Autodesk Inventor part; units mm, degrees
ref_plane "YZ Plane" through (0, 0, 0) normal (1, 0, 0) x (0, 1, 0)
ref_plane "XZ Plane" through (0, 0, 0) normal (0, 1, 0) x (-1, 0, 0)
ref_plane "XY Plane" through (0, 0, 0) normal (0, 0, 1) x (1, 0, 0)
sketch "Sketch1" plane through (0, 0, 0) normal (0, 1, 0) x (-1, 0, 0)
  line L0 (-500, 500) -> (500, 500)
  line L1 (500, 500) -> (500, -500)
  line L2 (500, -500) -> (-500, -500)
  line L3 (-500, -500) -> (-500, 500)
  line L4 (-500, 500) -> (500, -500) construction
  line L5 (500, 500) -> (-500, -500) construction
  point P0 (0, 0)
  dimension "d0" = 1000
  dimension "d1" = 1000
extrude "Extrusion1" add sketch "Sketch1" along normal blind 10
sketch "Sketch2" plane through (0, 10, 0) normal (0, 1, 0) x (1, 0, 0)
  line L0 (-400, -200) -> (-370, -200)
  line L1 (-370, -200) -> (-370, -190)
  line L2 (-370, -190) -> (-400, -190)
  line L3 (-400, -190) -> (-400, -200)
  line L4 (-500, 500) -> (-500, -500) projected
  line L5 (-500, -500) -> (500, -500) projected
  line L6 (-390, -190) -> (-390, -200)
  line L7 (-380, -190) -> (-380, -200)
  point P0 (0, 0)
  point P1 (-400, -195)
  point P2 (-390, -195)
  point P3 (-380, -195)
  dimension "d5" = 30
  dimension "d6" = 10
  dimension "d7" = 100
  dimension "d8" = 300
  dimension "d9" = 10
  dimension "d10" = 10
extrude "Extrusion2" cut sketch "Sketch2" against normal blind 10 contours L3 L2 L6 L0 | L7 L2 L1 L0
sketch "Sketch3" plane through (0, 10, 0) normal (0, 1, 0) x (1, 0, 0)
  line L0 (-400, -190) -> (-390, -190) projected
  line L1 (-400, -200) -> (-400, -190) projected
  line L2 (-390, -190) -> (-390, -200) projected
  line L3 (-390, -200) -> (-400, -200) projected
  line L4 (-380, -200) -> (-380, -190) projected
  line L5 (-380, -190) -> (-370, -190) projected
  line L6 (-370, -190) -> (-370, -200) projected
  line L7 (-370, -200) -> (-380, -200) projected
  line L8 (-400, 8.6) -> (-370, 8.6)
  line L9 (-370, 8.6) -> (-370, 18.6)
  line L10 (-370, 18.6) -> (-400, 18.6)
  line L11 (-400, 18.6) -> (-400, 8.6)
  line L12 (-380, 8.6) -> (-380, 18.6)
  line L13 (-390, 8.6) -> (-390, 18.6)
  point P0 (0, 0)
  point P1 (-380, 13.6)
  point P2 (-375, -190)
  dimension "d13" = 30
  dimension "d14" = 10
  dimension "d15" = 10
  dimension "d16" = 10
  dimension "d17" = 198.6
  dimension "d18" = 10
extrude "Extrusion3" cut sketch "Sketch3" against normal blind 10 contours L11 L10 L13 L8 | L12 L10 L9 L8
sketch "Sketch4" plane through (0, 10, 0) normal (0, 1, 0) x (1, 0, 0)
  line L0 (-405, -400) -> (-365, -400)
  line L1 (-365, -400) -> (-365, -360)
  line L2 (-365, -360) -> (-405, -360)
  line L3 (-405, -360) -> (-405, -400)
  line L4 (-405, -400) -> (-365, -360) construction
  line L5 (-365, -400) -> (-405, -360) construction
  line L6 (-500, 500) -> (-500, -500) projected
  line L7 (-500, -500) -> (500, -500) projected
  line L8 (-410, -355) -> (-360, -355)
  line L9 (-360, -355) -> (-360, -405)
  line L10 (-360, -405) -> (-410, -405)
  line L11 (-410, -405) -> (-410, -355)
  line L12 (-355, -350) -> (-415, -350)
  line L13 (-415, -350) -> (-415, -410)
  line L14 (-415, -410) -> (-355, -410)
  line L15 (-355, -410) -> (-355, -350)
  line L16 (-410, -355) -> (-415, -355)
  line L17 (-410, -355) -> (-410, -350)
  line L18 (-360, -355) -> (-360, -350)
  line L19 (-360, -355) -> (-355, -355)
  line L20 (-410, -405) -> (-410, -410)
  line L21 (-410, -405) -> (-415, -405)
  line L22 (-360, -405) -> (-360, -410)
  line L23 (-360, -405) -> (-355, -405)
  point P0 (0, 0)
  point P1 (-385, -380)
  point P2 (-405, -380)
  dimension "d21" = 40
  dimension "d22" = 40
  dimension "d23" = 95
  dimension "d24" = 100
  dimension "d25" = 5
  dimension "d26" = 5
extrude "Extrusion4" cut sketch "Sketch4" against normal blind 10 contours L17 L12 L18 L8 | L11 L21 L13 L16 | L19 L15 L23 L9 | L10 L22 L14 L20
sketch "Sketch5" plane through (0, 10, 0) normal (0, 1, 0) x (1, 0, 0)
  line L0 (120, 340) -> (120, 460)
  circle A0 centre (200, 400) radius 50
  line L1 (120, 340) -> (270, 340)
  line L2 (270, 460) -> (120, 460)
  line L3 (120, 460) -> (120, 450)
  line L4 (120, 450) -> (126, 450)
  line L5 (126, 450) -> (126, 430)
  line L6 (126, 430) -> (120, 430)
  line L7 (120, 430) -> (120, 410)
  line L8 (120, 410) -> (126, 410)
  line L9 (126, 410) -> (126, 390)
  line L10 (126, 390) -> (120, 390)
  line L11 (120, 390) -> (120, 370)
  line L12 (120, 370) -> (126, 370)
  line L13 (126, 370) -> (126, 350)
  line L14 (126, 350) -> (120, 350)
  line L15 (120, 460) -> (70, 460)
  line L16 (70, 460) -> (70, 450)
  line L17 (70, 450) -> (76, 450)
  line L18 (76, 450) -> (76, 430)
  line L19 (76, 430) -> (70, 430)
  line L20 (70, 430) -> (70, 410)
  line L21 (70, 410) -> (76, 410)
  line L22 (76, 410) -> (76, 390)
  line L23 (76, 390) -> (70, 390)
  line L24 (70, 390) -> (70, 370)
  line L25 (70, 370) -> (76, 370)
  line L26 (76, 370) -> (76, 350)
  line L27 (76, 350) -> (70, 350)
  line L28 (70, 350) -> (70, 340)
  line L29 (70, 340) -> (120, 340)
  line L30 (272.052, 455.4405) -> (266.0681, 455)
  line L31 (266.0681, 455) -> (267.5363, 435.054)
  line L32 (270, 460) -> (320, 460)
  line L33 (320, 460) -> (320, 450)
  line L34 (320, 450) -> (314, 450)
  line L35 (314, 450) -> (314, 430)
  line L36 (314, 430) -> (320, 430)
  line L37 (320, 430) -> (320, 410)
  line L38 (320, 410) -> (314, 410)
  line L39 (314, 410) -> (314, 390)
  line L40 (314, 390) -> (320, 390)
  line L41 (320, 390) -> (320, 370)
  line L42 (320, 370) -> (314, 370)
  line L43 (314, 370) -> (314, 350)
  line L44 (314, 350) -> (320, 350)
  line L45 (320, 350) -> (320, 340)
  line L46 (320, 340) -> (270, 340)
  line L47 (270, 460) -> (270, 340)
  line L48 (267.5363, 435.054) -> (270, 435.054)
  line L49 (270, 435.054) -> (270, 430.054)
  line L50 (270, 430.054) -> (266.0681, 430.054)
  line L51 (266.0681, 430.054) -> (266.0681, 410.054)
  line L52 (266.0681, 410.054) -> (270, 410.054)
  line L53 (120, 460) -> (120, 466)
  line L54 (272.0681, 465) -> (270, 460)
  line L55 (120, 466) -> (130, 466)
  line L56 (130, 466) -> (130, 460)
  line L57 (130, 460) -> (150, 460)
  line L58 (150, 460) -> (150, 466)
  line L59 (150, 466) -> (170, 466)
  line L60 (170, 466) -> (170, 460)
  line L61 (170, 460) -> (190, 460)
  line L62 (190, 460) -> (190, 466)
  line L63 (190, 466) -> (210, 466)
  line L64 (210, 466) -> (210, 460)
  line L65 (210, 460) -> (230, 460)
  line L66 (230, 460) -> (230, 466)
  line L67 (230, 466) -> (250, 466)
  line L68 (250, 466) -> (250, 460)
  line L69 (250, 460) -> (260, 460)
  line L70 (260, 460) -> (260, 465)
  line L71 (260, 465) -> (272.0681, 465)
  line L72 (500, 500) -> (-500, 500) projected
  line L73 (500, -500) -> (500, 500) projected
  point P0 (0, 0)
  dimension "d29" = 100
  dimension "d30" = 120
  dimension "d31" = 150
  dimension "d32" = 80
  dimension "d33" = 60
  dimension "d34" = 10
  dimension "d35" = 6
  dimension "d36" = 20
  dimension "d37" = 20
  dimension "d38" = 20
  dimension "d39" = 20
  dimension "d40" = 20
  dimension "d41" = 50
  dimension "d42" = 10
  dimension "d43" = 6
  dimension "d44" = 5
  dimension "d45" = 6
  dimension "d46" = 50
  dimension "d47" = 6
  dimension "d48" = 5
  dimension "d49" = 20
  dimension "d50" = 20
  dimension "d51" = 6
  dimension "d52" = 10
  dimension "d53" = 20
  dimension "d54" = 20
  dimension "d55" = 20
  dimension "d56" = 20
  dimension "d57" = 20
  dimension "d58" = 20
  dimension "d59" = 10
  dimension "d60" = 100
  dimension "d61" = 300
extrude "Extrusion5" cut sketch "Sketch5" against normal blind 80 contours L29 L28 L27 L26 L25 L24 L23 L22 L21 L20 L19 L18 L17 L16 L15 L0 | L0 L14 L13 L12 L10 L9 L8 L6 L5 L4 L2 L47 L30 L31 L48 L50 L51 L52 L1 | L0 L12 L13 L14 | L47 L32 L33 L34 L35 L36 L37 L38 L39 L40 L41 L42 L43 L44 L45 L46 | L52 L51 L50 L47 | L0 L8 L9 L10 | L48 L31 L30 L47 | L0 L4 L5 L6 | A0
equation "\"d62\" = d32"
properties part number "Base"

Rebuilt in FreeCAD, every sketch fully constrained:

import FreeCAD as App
import Part
import Sketcher
from FreeCAD import Vector

doc = App.newDocument("Part")
body = doc.addObject("PartDesign::Body", "Body")
body.AllowCompound = True

# Sketch on XZ plane
sketch1 = body.newObject("Sketcher::SketchObject", "Sketch")
sketch1.AttachmentSupport = (doc.getObject("XZ_Plane"), [""])
sketch1.MapMode = "FlatFace"
sketch1.addGeometry([
    Part.LineSegment(Vector(-500, 500, 0), Vector(500, 500, 0)),
    Part.LineSegment(Vector(500, 500, 0), Vector(500, -500, 0)),
    Part.LineSegment(Vector(500, -500, 0), Vector(-500, -500, 0)),
    Part.LineSegment(Vector(-500, -500, 0), Vector(-500, 500, 0)),
], False)
sketch1.addConstraint([
    Sketcher.Constraint("Coincident", 0, 2, 1, 1),
    Sketcher.Constraint("Coincident", 1, 2, 2, 1),
    Sketcher.Constraint("Coincident", 2, 2, 3, 1),
    Sketcher.Constraint("Coincident", 3, 2, 0, 1),
    Sketcher.Constraint("Horizontal", 0),
    Sketcher.Constraint("Vertical", 1),
    Sketcher.Constraint("Horizontal", 2),
    Sketcher.Constraint("Vertical", 3),
    Sketcher.Constraint("Symmetric", 0, 2, 2, 2, -1, 1),
    Sketcher.Constraint("Equal", 2, 1),
    Sketcher.Constraint("DistanceX", 0, 1, 0, 2, 1000.0),
])
pad1 = body.newObject("PartDesign::Pad", "Pad")
pad1.Profile = sketch1
pad1.Length = 10
pad1.Reversed = True

# Sketch on XZ plane
sketch2 = body.newObject("Sketcher::SketchObject", "Sketch001")
sketch2.AttachmentSupport = (doc.getObject("XZ_Plane"), [""])
sketch2.MapMode = "FlatFace"
sketch2.AttachmentOffset = App.Placement(Vector(0, 0, -10), App.Rotation())
sketch2.addGeometry([
    Part.LineSegment(Vector(-400, 190, 0), Vector(-400, 200, 0)),  # 0
    Part.LineSegment(Vector(-400, 200, 0), Vector(-390, 200, 0)),  # 1
    Part.LineSegment(Vector(-390, 200, 0), Vector(-390, 190, 0)),  # 2
    Part.LineSegment(Vector(-390, 190, 0), Vector(-400, 190, 0)),  # 3
    Part.LineSegment(Vector(-380, 190, 0), Vector(-380, 200, 0)),  # 4
    Part.LineSegment(Vector(-380, 200, 0), Vector(-370, 200, 0)),  # 5
    Part.LineSegment(Vector(-370, 200, 0), Vector(-370, 190, 0)),  # 6
    Part.LineSegment(Vector(-370, 190, 0), Vector(-380, 190, 0)),  # 7
], False)
sketch2.addConstraint([
    Sketcher.Constraint("Coincident", 0, 2, 1, 1),
    Sketcher.Constraint("Coincident", 1, 2, 2, 1),
    Sketcher.Constraint("Coincident", 2, 2, 3, 1),
    Sketcher.Constraint("Coincident", 3, 2, 0, 1),
    Sketcher.Constraint("Coincident", 4, 2, 5, 1),
    Sketcher.Constraint("Coincident", 5, 2, 6, 1),
    Sketcher.Constraint("Coincident", 6, 2, 7, 1),
    Sketcher.Constraint("Coincident", 7, 2, 4, 1),
    Sketcher.Constraint("Vertical", 0),
    Sketcher.Constraint("Horizontal", 1),
    Sketcher.Constraint("Vertical", 2),
    Sketcher.Constraint("Horizontal", 3),
    Sketcher.Constraint("Vertical", 4),
    Sketcher.Constraint("Horizontal", 5),
    Sketcher.Constraint("Vertical", 6),
    Sketcher.Constraint("Horizontal", 7),
    Sketcher.Constraint("Horizontal", 1, 2, 4, 2),
    Sketcher.Constraint("Horizontal", 3, 2, 6, 2),
    Sketcher.Constraint("Equal", 3, 5),
    Sketcher.Constraint("Equal", 7, 0),
    Sketcher.Constraint("DistanceX", 1, 1, 1, 2, 10.0),
    Sketcher.Constraint("DistanceX", 1, 2, 4, 2, 10.0),
    Sketcher.Constraint("DistanceX", 0, 2, -1, 1, 400.0),
    Sketcher.Constraint("DistanceY", -1, 1, 0, 2, 200.0),
])
pocket1 = body.newObject("PartDesign::Pocket", "Pocket")
pocket1.Profile = sketch2
pocket1.Length = 10
pocket1.Reversed = True

# Sketch on XZ plane
sketch3 = body.newObject("Sketcher::SketchObject", "Sketch002")
sketch3.AttachmentSupport = (doc.getObject("XZ_Plane"), [""])
sketch3.MapMode = "FlatFace"
sketch3.AttachmentOffset = App.Placement(Vector(0, 0, -10), App.Rotation())
sketch3.addGeometry([
    Part.LineSegment(Vector(-400, -18.6, 0), Vector(-400, -8.6, 0)),  # 0
    Part.LineSegment(Vector(-400, -8.6, 0), Vector(-390, -8.6, 0)),  # 1
    Part.LineSegment(Vector(-390, -8.6, 0), Vector(-390, -18.6, 0)),  # 2
    Part.LineSegment(Vector(-390, -18.6, 0), Vector(-400, -18.6, 0)),  # 3
    Part.LineSegment(Vector(-380, -18.6, 0), Vector(-380, -8.6, 0)),  # 4
    Part.LineSegment(Vector(-380, -8.6, 0), Vector(-370, -8.6, 0)),  # 5
    Part.LineSegment(Vector(-370, -8.6, 0), Vector(-370, -18.6, 0)),  # 6
    Part.LineSegment(Vector(-370, -18.6, 0), Vector(-380, -18.6, 0)),  # 7
], False)
sketch3.addConstraint([
    Sketcher.Constraint("Coincident", 0, 2, 1, 1),
    Sketcher.Constraint("Coincident", 1, 2, 2, 1),
    Sketcher.Constraint("Coincident", 2, 2, 3, 1),
    Sketcher.Constraint("Coincident", 3, 2, 0, 1),
    Sketcher.Constraint("Coincident", 4, 2, 5, 1),
    Sketcher.Constraint("Coincident", 5, 2, 6, 1),
    Sketcher.Constraint("Coincident", 6, 2, 7, 1),
    Sketcher.Constraint("Coincident", 7, 2, 4, 1),
    Sketcher.Constraint("Vertical", 0),
    Sketcher.Constraint("Horizontal", 1),
    Sketcher.Constraint("Vertical", 2),
    Sketcher.Constraint("Horizontal", 3),
    Sketcher.Constraint("Vertical", 4),
    Sketcher.Constraint("Horizontal", 5),
    Sketcher.Constraint("Vertical", 6),
    Sketcher.Constraint("Horizontal", 7),
    Sketcher.Constraint("Horizontal", 1, 2, 4, 2),
    Sketcher.Constraint("Horizontal", 3, 2, 6, 2),
    Sketcher.Constraint("Equal", 3, 5),
    Sketcher.Constraint("Equal", 7, 0),
    Sketcher.Constraint("DistanceX", 1, 1, 1, 2, 10.0),
    Sketcher.Constraint("DistanceX", 1, 2, 4, 2, 10.0),
    Sketcher.Constraint("DistanceX", 0, 2, -1, 1, 400.0),
    Sketcher.Constraint("DistanceY", 0, 2, -1, 1, 8.6),
])
pocket2 = body.newObject("PartDesign::Pocket", "Pocket001")
pocket2.Profile = sketch3
pocket2.Length = 10
pocket2.Reversed = True

# Sketch on XZ plane
sketch4 = body.newObject("Sketcher::SketchObject", "Sketch003")
sketch4.AttachmentSupport = (doc.getObject("XZ_Plane"), [""])
sketch4.MapMode = "FlatFace"
sketch4.AttachmentOffset = App.Placement(Vector(0, 0, -10), App.Rotation())
sketch4.addGeometry([
    Part.LineSegment(Vector(-410, 350, 0), Vector(-410, 355, 0)),  # 0
    Part.LineSegment(Vector(-410, 355, 0), Vector(-360, 355, 0)),  # 1
    Part.LineSegment(Vector(-360, 355, 0), Vector(-360, 350, 0)),  # 2
    Part.LineSegment(Vector(-360, 350, 0), Vector(-410, 350, 0)),  # 3
    Part.LineSegment(Vector(-410, 405, 0), Vector(-410, 355, 0)),  # 4
    Part.LineSegment(Vector(-410, 355, 0), Vector(-415, 355, 0)),  # 5
    Part.LineSegment(Vector(-415, 355, 0), Vector(-415, 405, 0)),  # 6
    Part.LineSegment(Vector(-415, 405, 0), Vector(-410, 405, 0)),  # 7
    Part.LineSegment(Vector(-355, 355, 0), Vector(-360, 355, 0)),  # 8
    Part.LineSegment(Vector(-360, 355, 0), Vector(-360, 405, 0)),  # 9
    Part.LineSegment(Vector(-360, 405, 0), Vector(-355, 405, 0)),  # 10
    Part.LineSegment(Vector(-355, 405, 0), Vector(-355, 355, 0)),  # 11
    Part.LineSegment(Vector(-360, 405, 0), Vector(-410, 405, 0)),  # 12
    Part.LineSegment(Vector(-410, 405, 0), Vector(-410, 410, 0)),  # 13
    Part.LineSegment(Vector(-410, 410, 0), Vector(-360, 410, 0)),  # 14
    Part.LineSegment(Vector(-360, 410, 0), Vector(-360, 405, 0)),  # 15
], False)
sketch4.addConstraint([
    Sketcher.Constraint("Coincident", 0, 2, 1, 1),
    Sketcher.Constraint("Coincident", 1, 2, 2, 1),
    Sketcher.Constraint("Coincident", 2, 2, 3, 1),
    Sketcher.Constraint("Coincident", 3, 2, 0, 1),
    Sketcher.Constraint("Coincident", 4, 2, 5, 1),
    Sketcher.Constraint("Coincident", 5, 2, 6, 1),
    Sketcher.Constraint("Coincident", 6, 2, 7, 1),
    Sketcher.Constraint("Coincident", 7, 2, 4, 1),
    Sketcher.Constraint("Coincident", 8, 2, 9, 1),
    Sketcher.Constraint("Coincident", 9, 2, 10, 1),
    Sketcher.Constraint("Coincident", 10, 2, 11, 1),
    Sketcher.Constraint("Coincident", 11, 2, 8, 1),
    Sketcher.Constraint("Coincident", 12, 2, 13, 1),
    Sketcher.Constraint("Coincident", 13, 2, 14, 1),
    Sketcher.Constraint("Coincident", 14, 2, 15, 1),
    Sketcher.Constraint("Coincident", 15, 2, 12, 1),
    Sketcher.Constraint("Vertical", 0),
    Sketcher.Constraint("Horizontal", 1),
    Sketcher.Constraint("Vertical", 2),
    Sketcher.Constraint("Horizontal", 3),
    Sketcher.Constraint("Vertical", 4),
    Sketcher.Constraint("Horizontal", 5),
    Sketcher.Constraint("Vertical", 6),
    Sketcher.Constraint("Horizontal", 7),
    Sketcher.Constraint("Horizontal", 8),
    Sketcher.Constraint("Vertical", 9),
    Sketcher.Constraint("Horizontal", 10),
    Sketcher.Constraint("Vertical", 11),
    Sketcher.Constraint("Horizontal", 12),
    Sketcher.Constraint("Vertical", 13),
    Sketcher.Constraint("Horizontal", 14),
    Sketcher.Constraint("Vertical", 15),
    Sketcher.Constraint("Coincident", 4, 2, 0, 2),
    Sketcher.Constraint("Coincident", 8, 2, 1, 2),
    Sketcher.Constraint("Coincident", 12, 2, 7, 2),
    Sketcher.Constraint("Coincident", 15, 2, 9, 2),
    Sketcher.Constraint("Equal", 7, 8),
    Sketcher.Constraint("Equal", 10, 0),
    Sketcher.Constraint("Equal", 14, 4),
    Sketcher.Constraint("Equal", 2, 13),
    Sketcher.Constraint("DistanceX", 5, 2, 5, 1, 5.0),
    Sketcher.Constraint("DistanceX", 1, 1, 1, 2, 50.0),
    Sketcher.Constraint("DistanceX", 0, 2, -1, 1, 410.0),
    Sketcher.Constraint("DistanceY", -1, 1, 0, 2, 355.0),
])
pocket3 = body.newObject("PartDesign::Pocket", "Pocket002")
pocket3.Profile = sketch4
pocket3.Length = 10
pocket3.Reversed = True

# Sketch on XZ plane
sketch5 = body.newObject("Sketcher::SketchObject", "Sketch004")
sketch5.AttachmentSupport = (doc.getObject("XZ_Plane"), [""])
sketch5.MapMode = "FlatFace"
sketch5.AttachmentOffset = App.Placement(Vector(0, 0, -10), App.Rotation())
sketch5.addGeometry([
    Part.LineSegment(Vector(70, -340, 0), Vector(320, -340, 0)),  # 0
    Part.LineSegment(Vector(320, -340, 0), Vector(320, -350, 0)),  # 1
    Part.LineSegment(Vector(320, -350, 0), Vector(314, -350, 0)),  # 2
    Part.LineSegment(Vector(314, -350, 0), Vector(314, -370, 0)),  # 3
    Part.LineSegment(Vector(314, -370, 0), Vector(320, -370, 0)),  # 4
    Part.LineSegment(Vector(320, -370, 0), Vector(320, -390, 0)),  # 5
    Part.LineSegment(Vector(320, -390, 0), Vector(314, -390, 0)),  # 6
    Part.LineSegment(Vector(314, -390, 0), Vector(314, -410, 0)),  # 7
    Part.LineSegment(Vector(314, -410, 0), Vector(320, -410, 0)),  # 8
    Part.LineSegment(Vector(320, -410, 0), Vector(320, -430, 0)),  # 9
    Part.LineSegment(Vector(320, -430, 0), Vector(314, -430, 0)),  # 10
    Part.LineSegment(Vector(314, -430, 0), Vector(314, -450, 0)),  # 11
    Part.LineSegment(Vector(314, -450, 0), Vector(320, -450, 0)),  # 12
    Part.LineSegment(Vector(320, -450, 0), Vector(320, -460, 0)),  # 13
    Part.LineSegment(Vector(320, -460, 0), Vector(70, -460, 0)),  # 14
    Part.LineSegment(Vector(70, -460, 0), Vector(70, -450, 0)),  # 15
    Part.LineSegment(Vector(70, -450, 0), Vector(76, -450, 0)),  # 16
    Part.LineSegment(Vector(76, -450, 0), Vector(76, -430, 0)),  # 17
    Part.LineSegment(Vector(76, -430, 0), Vector(70, -430, 0)),  # 18
    Part.LineSegment(Vector(70, -430, 0), Vector(70, -410, 0)),  # 19
    Part.LineSegment(Vector(70, -410, 0), Vector(76, -410, 0)),  # 20
    Part.LineSegment(Vector(76, -410, 0), Vector(76, -390, 0)),  # 21
    Part.LineSegment(Vector(76, -390, 0), Vector(70, -390, 0)),  # 22
    Part.LineSegment(Vector(70, -390, 0), Vector(70, -370, 0)),  # 23
    Part.LineSegment(Vector(70, -370, 0), Vector(76, -370, 0)),  # 24
    Part.LineSegment(Vector(76, -370, 0), Vector(76, -350, 0)),  # 25
    Part.LineSegment(Vector(76, -350, 0), Vector(70, -350, 0)),  # 26
    Part.LineSegment(Vector(70, -350, 0), Vector(70, -340, 0)),  # 27
], False)
sketch5.addConstraint([
    Sketcher.Constraint("Coincident", 0, 2, 1, 1),
    Sketcher.Constraint("Coincident", 1, 2, 2, 1),
    Sketcher.Constraint("Coincident", 2, 2, 3, 1),
    Sketcher.Constraint("Coincident", 3, 2, 4, 1),
    Sketcher.Constraint("Coincident", 4, 2, 5, 1),
    Sketcher.Constraint("Coincident", 5, 2, 6, 1),
    Sketcher.Constraint("Coincident", 6, 2, 7, 1),
    Sketcher.Constraint("Coincident", 7, 2, 8, 1),
    Sketcher.Constraint("Coincident", 8, 2, 9, 1),
    Sketcher.Constraint("Coincident", 9, 2, 10, 1),
    Sketcher.Constraint("Coincident", 10, 2, 11, 1),
    Sketcher.Constraint("Coincident", 11, 2, 12, 1),
    Sketcher.Constraint("Coincident", 12, 2, 13, 1),
    Sketcher.Constraint("Coincident", 13, 2, 14, 1),
    Sketcher.Constraint("Coincident", 14, 2, 15, 1),
    Sketcher.Constraint("Coincident", 15, 2, 16, 1),
    Sketcher.Constraint("Coincident", 16, 2, 17, 1),
    Sketcher.Constraint("Coincident", 17, 2, 18, 1),
    Sketcher.Constraint("Coincident", 18, 2, 19, 1),
    Sketcher.Constraint("Coincident", 19, 2, 20, 1),
    Sketcher.Constraint("Coincident", 20, 2, 21, 1),
    Sketcher.Constraint("Coincident", 21, 2, 22, 1),
    Sketcher.Constraint("Coincident", 22, 2, 23, 1),
    Sketcher.Constraint("Coincident", 23, 2, 24, 1),
    Sketcher.Constraint("Coincident", 24, 2, 25, 1),
    Sketcher.Constraint("Coincident", 25, 2, 26, 1),
    Sketcher.Constraint("Coincident", 26, 2, 27, 1),
    Sketcher.Constraint("Coincident", 27, 2, 0, 1),
    Sketcher.Constraint("Horizontal", 0),
    Sketcher.Constraint("Vertical", 1),
    Sketcher.Constraint("Horizontal", 2),
    Sketcher.Constraint("Vertical", 3),
    Sketcher.Constraint("Horizontal", 4),
    Sketcher.Constraint("Vertical", 5),
    Sketcher.Constraint("Horizontal", 6),
    Sketcher.Constraint("Vertical", 7),
    Sketcher.Constraint("Horizontal", 8),
    Sketcher.Constraint("Vertical", 9),
    Sketcher.Constraint("Horizontal", 10),
    Sketcher.Constraint("Vertical", 11),
    Sketcher.Constraint("Horizontal", 12),
    Sketcher.Constraint("Vertical", 13),
    Sketcher.Constraint("Horizontal", 14),
    Sketcher.Constraint("Vertical", 15),
    Sketcher.Constraint("Horizontal", 16),
    Sketcher.Constraint("Vertical", 17),
    Sketcher.Constraint("Horizontal", 18),
    Sketcher.Constraint("Vertical", 19),
    Sketcher.Constraint("Horizontal", 20),
    Sketcher.Constraint("Vertical", 21),
    Sketcher.Constraint("Horizontal", 22),
    Sketcher.Constraint("Vertical", 23),
    Sketcher.Constraint("Horizontal", 24),
    Sketcher.Constraint("Vertical", 25),
    Sketcher.Constraint("Horizontal", 26),
    Sketcher.Constraint("Vertical", 27),
    Sketcher.Constraint("Horizontal", 12, 2, 15, 2),
    Sketcher.Constraint("Horizontal", 10, 2, 17, 2),
    Sketcher.Constraint("Horizontal", 8, 2, 19, 2),
    Sketcher.Constraint("Horizontal", 6, 2, 21, 2),
    Sketcher.Constraint("Horizontal", 4, 2, 23, 2),
    Sketcher.Constraint("Horizontal", 2, 2, 25, 2),
    Sketcher.Constraint("Vertical", 1, 2, 4, 2),
    Sketcher.Constraint("Vertical", 3, 2, 6, 2),
    Sketcher.Constraint("Vertical", 5, 2, 8, 2),
    Sketcher.Constraint("Vertical", 7, 2, 10, 2),
    Sketcher.Constraint("Vertical", 9, 2, 12, 2),
    Sketcher.Constraint("Vertical", 15, 2, 18, 2),
    Sketcher.Constraint("Vertical", 17, 2, 20, 2),
    Sketcher.Constraint("Vertical", 19, 2, 22, 2),
    Sketcher.Constraint("Vertical", 21, 2, 24, 2),
    Sketcher.Constraint("Vertical", 23, 2, 26, 2),
    Sketcher.Constraint("Equal", 12, 16),
    Sketcher.Constraint("Equal", 3, 5),
    Sketcher.Constraint("Equal", 5, 7),
    Sketcher.Constraint("Equal", 7, 9),
    Sketcher.Constraint("Equal", 9, 11),
    Sketcher.Constraint("Equal", 1, 13),
    Sketcher.Constraint("DistanceX", 2, 2, 2, 1, 6.0),
    Sketcher.Constraint("DistanceY", 1, 2, 1, 1, 10.0),
    Sketcher.Constraint("DistanceY", 3, 2, 3, 1, 20.0),
    Sketcher.Constraint("DistanceX", 0, 1, 0, 2, 250.0),
    Sketcher.Constraint("DistanceX", -1, 1, 0, 2, 320.0),
    Sketcher.Constraint("DistanceY", 0, 2, -1, 1, 340.0),
])
pocket4 = body.newObject("PartDesign::Pocket", "Pocket003")
pocket4.Profile = sketch5
pocket4.Length = 80
pocket4.Reversed = True

doc.recompute()
